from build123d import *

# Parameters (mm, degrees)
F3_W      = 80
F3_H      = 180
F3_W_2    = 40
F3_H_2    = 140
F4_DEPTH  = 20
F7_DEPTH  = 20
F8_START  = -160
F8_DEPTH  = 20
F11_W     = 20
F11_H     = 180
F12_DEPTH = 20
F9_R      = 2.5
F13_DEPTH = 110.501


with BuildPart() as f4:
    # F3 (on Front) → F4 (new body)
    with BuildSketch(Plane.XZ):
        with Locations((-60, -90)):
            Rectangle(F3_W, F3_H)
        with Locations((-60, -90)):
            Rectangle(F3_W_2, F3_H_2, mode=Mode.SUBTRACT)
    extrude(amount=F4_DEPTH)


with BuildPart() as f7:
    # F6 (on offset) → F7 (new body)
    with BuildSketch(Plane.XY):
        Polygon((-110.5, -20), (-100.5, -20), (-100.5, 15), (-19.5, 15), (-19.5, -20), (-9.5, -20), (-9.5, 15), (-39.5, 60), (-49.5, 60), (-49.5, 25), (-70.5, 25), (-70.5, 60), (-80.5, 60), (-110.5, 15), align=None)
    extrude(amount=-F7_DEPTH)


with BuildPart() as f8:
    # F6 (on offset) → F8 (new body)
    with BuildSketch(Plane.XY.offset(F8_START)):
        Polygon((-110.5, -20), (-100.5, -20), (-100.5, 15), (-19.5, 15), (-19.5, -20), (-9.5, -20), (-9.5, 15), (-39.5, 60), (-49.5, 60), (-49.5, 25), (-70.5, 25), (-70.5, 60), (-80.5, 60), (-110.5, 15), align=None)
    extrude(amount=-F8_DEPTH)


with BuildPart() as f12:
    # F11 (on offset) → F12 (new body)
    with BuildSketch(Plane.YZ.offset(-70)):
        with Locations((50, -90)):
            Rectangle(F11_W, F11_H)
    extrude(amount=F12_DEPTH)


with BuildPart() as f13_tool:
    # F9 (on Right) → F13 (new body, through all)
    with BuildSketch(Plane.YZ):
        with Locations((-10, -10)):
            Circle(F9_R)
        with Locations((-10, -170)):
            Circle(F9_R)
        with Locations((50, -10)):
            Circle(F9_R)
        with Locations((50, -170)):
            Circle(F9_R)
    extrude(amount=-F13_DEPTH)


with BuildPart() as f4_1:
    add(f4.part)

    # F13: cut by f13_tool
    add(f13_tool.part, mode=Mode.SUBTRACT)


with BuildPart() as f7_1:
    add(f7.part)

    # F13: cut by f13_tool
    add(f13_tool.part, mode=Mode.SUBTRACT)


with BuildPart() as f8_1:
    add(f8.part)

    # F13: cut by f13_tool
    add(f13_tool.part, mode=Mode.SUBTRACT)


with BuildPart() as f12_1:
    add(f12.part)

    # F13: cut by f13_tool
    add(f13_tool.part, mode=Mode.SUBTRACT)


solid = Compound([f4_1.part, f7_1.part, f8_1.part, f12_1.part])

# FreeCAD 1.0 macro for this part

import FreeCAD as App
import Part
import Sketcher
from FreeCAD import Vector


def add_polygon(sketch, points):
    """Adds a closed chain of lines whose ends are joined by coincident constraints."""
    first, n = sketch.GeometryCount, len(points)
    for a, b in zip(points, points[1:] + points[:1]):
        sketch.addGeometry(Part.LineSegment(App.Vector(*a, 0), App.Vector(*b, 0)), False)
    for i in range(n):
        sketch.addConstraint(Sketcher.Constraint("Coincident", first + i, 2, first + (i + 1) % n, 1))

doc = App.newDocument("Part")
body = doc.addObject("PartDesign::Body", "Body")

sketch1 = body.newObject("Sketcher::SketchObject", "Sketch")
sketch1.AttachmentSupport = (doc.getObject("XZ_Plane"), [""])
sketch1.MapMode = "FlatFace"
add_polygon(sketch1, [(-100, 0), (-100, -180), (-20, -180), (-20, 0)])
add_polygon(sketch1, [(-40, -160), (-80, -160), (-80, -20), (-40, -20)])
sketch1.addConstraint([
    Sketcher.Constraint("Vertical", 0),
    Sketcher.Constraint("Horizontal", 1),
    Sketcher.Constraint("Vertical", 2),
    Sketcher.Constraint("Horizontal", 3),
    Sketcher.Constraint("Horizontal", 4),
    Sketcher.Constraint("Vertical", 5),
    Sketcher.Constraint("Horizontal", 6),
    Sketcher.Constraint("Vertical", 7),
    Sketcher.Constraint("PointOnObject", 2, 2, -1),
    Sketcher.Constraint("DistanceX", 1, 1, 1, 2, 80.0),
    Sketcher.Constraint("DistanceX", 4, 2, 4, 1, 40.0),
    Sketcher.Constraint("DistanceY", 0, 2, 0, 1, 180.0),
    Sketcher.Constraint("DistanceY", 5, 1, 5, 2, 140.0),
    Sketcher.Constraint("DistanceX", 0, 2, -1, 1, 100.0),
    Sketcher.Constraint("DistanceX", 4, 2, -1, 1, 80.0),
    Sketcher.Constraint("DistanceY", 4, 2, -1, 1, 160.0),
])
pad1 = body.newObject("PartDesign::Pad", "Pad")
pad1.Profile = sketch1
pad1.Length = 20
body2 = doc.addObject("PartDesign::Body", "Body001")

sketch2 = body2.newObject("Sketcher::SketchObject", "Sketch001")
sketch2.AttachmentSupport = (doc.getObject("XY_Plane001"), [""])
sketch2.MapMode = "FlatFace"
add_polygon(sketch2, [(-110, -20), (-100, -20), (-100, 15), (-20, 15), (-20, -20), (-10, -20), (-10, 15), (-40, 60), (-50, 60), (-50, 25), (-70, 25), (-70, 60), (-80, 60), (-110, 15)])
sketch2.addConstraint([
    Sketcher.Constraint("Horizontal", 0),
    Sketcher.Constraint("Vertical", 1),
    Sketcher.Constraint("Horizontal", 2),
    Sketcher.Constraint("Vertical", 3),
    Sketcher.Constraint("Horizontal", 4),
    Sketcher.Constraint("Vertical", 5),
    Sketcher.Constraint("Horizontal", 7),
    Sketcher.Constraint("Vertical", 8),
    Sketcher.Constraint("Horizontal", 9),
    Sketcher.Constraint("Vertical", 10),
    Sketcher.Constraint("Horizontal", 11),
    Sketcher.Constraint("Vertical", 13),
    Sketcher.Constraint("Horizontal", 0, 2, 3, 2),
    Sketcher.Constraint("Horizontal", 2, 2, 5, 2),
    Sketcher.Constraint("Horizontal", 7, 2, 10, 2),
    Sketcher.Constraint("Horizontal", 5, 2, 12, 2),
    Sketcher.Constraint("Equal", 0, 4),
    Sketcher.Constraint("Equal", 4, 7),
    Sketcher.Constraint("Equal", 7, 11),
    Sketcher.Constraint("Equal", 5, 8),
    Sketcher.Constraint("Equal", 6, 12),
    Sketcher.Constraint("DistanceX", 0, 1, 0, 2, 10.0),
    Sketcher.Constraint("DistanceX", 2, 1, 2, 2, 81.0),
    Sketcher.Constraint("DistanceX", 9, 2, 9, 1, 21.0),
    Sketcher.Constraint("DistanceY", 1, 1, 1, 2, 35.0),
    Sketcher.Constraint("DistanceY", 0, 2, -1, 1, 20.0),
    Sketcher.Constraint("DistanceY", -1, 1, 6, 2, 60.0),
    Sketcher.Constraint("DistanceX", 0, 2, -1, 1, 100.5),
])
pad2 = body2.newObject("PartDesign::Pad", "Pad001")
pad2.Profile = sketch2
pad2.Length = 20
pad2.Reversed = True
body3 = doc.addObject("PartDesign::Body", "Body002")

sketch3 = body3.newObject("Sketcher::SketchObject", "Sketch002")
sketch3.AttachmentSupport = (doc.getObject("XY_Plane002"), [""])
sketch3.MapMode = "FlatFace"
sketch3.AttachmentOffset = App.Placement(Vector(0, 0, -160), App.Rotation())
add_polygon(sketch3, [(-110, -20), (-100, -20), (-100, 15), (-20, 15), (-20, -20), (-10, -20), (-10, 15), (-40, 60), (-50, 60), (-50, 25), (-70, 25), (-70, 60), (-80, 60), (-110, 15)])
sketch3.addConstraint([
    Sketcher.Constraint("Horizontal", 0),
    Sketcher.Constraint("Vertical", 1),
    Sketcher.Constraint("Horizontal", 2),
    Sketcher.Constraint("Vertical", 3),
    Sketcher.Constraint("Horizontal", 4),
    Sketcher.Constraint("Vertical", 5),
    Sketcher.Constraint("Horizontal", 7),
    Sketcher.Constraint("Vertical", 8),
    Sketcher.Constraint("Horizontal", 9),
    Sketcher.Constraint("Vertical", 10),
    Sketcher.Constraint("Horizontal", 11),
    Sketcher.Constraint("Vertical", 13),
    Sketcher.Constraint("Horizontal", 0, 2, 3, 2),
    Sketcher.Constraint("Horizontal", 2, 2, 5, 2),
    Sketcher.Constraint("Horizontal", 7, 2, 10, 2),
    Sketcher.Constraint("Horizontal", 5, 2, 12, 2),
    Sketcher.Constraint("Equal", 0, 4),
    Sketcher.Constraint("Equal", 4, 7),
    Sketcher.Constraint("Equal", 7, 11),
    Sketcher.Constraint("Equal", 5, 8),
    Sketcher.Constraint("Equal", 6, 12),
    Sketcher.Constraint("DistanceX", 0, 1, 0, 2, 10.0),
    Sketcher.Constraint("DistanceX", 2, 1, 2, 2, 81.0),
    Sketcher.Constraint("DistanceX", 9, 2, 9, 1, 21.0),
    Sketcher.Constraint("DistanceY", 1, 1, 1, 2, 35.0),
    Sketcher.Constraint("DistanceY", 0, 2, -1, 1, 20.0),
    Sketcher.Constraint("DistanceY", -1, 1, 6, 2, 60.0),
    Sketcher.Constraint("DistanceX", 0, 2, -1, 1, 100.5),
])
pad3 = body3.newObject("PartDesign::Pad", "Pad002")
pad3.Profile = sketch3
pad3.Length = 20
pad3.Reversed = True
body4 = doc.addObject("PartDesign::Body", "Body003")

sketch4 = body4.newObject("Sketcher::SketchObject", "Sketch003")
sketch4.AttachmentSupport = (doc.getObject("YZ_Plane003"), [""])
sketch4.MapMode = "FlatFace"
sketch4.AttachmentOffset = App.Placement(Vector(0, 0, -70), App.Rotation())
add_polygon(sketch4, [(40, 0), (40, -180), (60, -180), (60, 0)])
sketch4.addConstraint([
    Sketcher.Constraint("Vertical", 0),
    Sketcher.Constraint("Horizontal", 1),
    Sketcher.Constraint("Vertical", 2),
    Sketcher.Constraint("Horizontal", 3),
    Sketcher.Constraint("PointOnObject", 2, 2, -1),
    Sketcher.Constraint("DistanceX", 1, 1, 1, 2, 20.0),
    Sketcher.Constraint("DistanceY", 0, 2, 0, 1, 180.0),
    Sketcher.Constraint("DistanceX", -1, 1, 0, 2, 40.0),
])
pad4 = body4.newObject("PartDesign::Pad", "Pad003")
pad4.Profile = sketch4
pad4.Length = 20
body5 = doc.addObject("PartDesign::Body", "Body004")
body5.AllowCompound = True

sketch5 = body5.newObject("Sketcher::SketchObject", "Sketch004")
sketch5.AttachmentSupport = (doc.getObject("YZ_Plane004"), [""])
sketch5.MapMode = "FlatFace"
sketch5.addGeometry([
    Part.Circle(Vector(-10, -10, 0), Vector(0, 0, 1), 2.5),
    Part.Circle(Vector(-10, -170, 0), Vector(0, 0, 1), 2.5),
    Part.Circle(Vector(50, -10, 0), Vector(0, 0, 1), 2.5),
    Part.Circle(Vector(50, -170, 0), Vector(0, 0, 1), 2.5),
], False)
sketch5.addConstraint([
    Sketcher.Constraint("Equal", 0, 1),
    Sketcher.Constraint("Equal", 1, 2),
    Sketcher.Constraint("Equal", 2, 3),
    Sketcher.Constraint("Horizontal", 0, 3, 2, 3),
    Sketcher.Constraint("Horizontal", 1, 3, 3, 3),
    Sketcher.Constraint("Vertical", 0, 3, 1, 3),
    Sketcher.Constraint("Vertical", 2, 3, 3, 3),
    Sketcher.Constraint("Diameter", 0, 5.0),
    Sketcher.Constraint("DistanceX", 0, 3, -1, 1, 10.0),
    Sketcher.Constraint("DistanceY", 0, 3, -1, 1, 10.0),
    Sketcher.Constraint("DistanceY", 1, 3, -1, 1, 170.0),
    Sketcher.Constraint("DistanceX", -1, 1, 2, 3, 50.0),
])
pad5 = body5.newObject("PartDesign::Pad", "Pad004")
pad5.Profile = sketch5
pad5.Length = 110.501
pad5.Reversed = True
doc.recompute()

body6 = doc.addObject("PartDesign::Body", "Body005")
body6.BaseFeature = body5
boolean = body.newObject("PartDesign::Boolean", "Boolean")
boolean.Type = "Cut"
boolean.addObjects([body6])
doc.recompute()

body7 = doc.addObject("PartDesign::Body", "Body006")
body7.BaseFeature = body5
boolean2 = body2.newObject("PartDesign::Boolean", "Boolean001")
boolean2.Type = "Cut"
boolean2.addObjects([body7])
doc.recompute()

body8 = doc.addObject("PartDesign::Body", "Body007")
body8.BaseFeature = body5
boolean3 = body3.newObject("PartDesign::Boolean", "Boolean002")
boolean3.Type = "Cut"
boolean3.addObjects([body8])
doc.recompute()

boolean4 = body4.newObject("PartDesign::Boolean", "Boolean003")
boolean4.Type = "Cut"
boolean4.addObjects([body5])

doc.recompute()
